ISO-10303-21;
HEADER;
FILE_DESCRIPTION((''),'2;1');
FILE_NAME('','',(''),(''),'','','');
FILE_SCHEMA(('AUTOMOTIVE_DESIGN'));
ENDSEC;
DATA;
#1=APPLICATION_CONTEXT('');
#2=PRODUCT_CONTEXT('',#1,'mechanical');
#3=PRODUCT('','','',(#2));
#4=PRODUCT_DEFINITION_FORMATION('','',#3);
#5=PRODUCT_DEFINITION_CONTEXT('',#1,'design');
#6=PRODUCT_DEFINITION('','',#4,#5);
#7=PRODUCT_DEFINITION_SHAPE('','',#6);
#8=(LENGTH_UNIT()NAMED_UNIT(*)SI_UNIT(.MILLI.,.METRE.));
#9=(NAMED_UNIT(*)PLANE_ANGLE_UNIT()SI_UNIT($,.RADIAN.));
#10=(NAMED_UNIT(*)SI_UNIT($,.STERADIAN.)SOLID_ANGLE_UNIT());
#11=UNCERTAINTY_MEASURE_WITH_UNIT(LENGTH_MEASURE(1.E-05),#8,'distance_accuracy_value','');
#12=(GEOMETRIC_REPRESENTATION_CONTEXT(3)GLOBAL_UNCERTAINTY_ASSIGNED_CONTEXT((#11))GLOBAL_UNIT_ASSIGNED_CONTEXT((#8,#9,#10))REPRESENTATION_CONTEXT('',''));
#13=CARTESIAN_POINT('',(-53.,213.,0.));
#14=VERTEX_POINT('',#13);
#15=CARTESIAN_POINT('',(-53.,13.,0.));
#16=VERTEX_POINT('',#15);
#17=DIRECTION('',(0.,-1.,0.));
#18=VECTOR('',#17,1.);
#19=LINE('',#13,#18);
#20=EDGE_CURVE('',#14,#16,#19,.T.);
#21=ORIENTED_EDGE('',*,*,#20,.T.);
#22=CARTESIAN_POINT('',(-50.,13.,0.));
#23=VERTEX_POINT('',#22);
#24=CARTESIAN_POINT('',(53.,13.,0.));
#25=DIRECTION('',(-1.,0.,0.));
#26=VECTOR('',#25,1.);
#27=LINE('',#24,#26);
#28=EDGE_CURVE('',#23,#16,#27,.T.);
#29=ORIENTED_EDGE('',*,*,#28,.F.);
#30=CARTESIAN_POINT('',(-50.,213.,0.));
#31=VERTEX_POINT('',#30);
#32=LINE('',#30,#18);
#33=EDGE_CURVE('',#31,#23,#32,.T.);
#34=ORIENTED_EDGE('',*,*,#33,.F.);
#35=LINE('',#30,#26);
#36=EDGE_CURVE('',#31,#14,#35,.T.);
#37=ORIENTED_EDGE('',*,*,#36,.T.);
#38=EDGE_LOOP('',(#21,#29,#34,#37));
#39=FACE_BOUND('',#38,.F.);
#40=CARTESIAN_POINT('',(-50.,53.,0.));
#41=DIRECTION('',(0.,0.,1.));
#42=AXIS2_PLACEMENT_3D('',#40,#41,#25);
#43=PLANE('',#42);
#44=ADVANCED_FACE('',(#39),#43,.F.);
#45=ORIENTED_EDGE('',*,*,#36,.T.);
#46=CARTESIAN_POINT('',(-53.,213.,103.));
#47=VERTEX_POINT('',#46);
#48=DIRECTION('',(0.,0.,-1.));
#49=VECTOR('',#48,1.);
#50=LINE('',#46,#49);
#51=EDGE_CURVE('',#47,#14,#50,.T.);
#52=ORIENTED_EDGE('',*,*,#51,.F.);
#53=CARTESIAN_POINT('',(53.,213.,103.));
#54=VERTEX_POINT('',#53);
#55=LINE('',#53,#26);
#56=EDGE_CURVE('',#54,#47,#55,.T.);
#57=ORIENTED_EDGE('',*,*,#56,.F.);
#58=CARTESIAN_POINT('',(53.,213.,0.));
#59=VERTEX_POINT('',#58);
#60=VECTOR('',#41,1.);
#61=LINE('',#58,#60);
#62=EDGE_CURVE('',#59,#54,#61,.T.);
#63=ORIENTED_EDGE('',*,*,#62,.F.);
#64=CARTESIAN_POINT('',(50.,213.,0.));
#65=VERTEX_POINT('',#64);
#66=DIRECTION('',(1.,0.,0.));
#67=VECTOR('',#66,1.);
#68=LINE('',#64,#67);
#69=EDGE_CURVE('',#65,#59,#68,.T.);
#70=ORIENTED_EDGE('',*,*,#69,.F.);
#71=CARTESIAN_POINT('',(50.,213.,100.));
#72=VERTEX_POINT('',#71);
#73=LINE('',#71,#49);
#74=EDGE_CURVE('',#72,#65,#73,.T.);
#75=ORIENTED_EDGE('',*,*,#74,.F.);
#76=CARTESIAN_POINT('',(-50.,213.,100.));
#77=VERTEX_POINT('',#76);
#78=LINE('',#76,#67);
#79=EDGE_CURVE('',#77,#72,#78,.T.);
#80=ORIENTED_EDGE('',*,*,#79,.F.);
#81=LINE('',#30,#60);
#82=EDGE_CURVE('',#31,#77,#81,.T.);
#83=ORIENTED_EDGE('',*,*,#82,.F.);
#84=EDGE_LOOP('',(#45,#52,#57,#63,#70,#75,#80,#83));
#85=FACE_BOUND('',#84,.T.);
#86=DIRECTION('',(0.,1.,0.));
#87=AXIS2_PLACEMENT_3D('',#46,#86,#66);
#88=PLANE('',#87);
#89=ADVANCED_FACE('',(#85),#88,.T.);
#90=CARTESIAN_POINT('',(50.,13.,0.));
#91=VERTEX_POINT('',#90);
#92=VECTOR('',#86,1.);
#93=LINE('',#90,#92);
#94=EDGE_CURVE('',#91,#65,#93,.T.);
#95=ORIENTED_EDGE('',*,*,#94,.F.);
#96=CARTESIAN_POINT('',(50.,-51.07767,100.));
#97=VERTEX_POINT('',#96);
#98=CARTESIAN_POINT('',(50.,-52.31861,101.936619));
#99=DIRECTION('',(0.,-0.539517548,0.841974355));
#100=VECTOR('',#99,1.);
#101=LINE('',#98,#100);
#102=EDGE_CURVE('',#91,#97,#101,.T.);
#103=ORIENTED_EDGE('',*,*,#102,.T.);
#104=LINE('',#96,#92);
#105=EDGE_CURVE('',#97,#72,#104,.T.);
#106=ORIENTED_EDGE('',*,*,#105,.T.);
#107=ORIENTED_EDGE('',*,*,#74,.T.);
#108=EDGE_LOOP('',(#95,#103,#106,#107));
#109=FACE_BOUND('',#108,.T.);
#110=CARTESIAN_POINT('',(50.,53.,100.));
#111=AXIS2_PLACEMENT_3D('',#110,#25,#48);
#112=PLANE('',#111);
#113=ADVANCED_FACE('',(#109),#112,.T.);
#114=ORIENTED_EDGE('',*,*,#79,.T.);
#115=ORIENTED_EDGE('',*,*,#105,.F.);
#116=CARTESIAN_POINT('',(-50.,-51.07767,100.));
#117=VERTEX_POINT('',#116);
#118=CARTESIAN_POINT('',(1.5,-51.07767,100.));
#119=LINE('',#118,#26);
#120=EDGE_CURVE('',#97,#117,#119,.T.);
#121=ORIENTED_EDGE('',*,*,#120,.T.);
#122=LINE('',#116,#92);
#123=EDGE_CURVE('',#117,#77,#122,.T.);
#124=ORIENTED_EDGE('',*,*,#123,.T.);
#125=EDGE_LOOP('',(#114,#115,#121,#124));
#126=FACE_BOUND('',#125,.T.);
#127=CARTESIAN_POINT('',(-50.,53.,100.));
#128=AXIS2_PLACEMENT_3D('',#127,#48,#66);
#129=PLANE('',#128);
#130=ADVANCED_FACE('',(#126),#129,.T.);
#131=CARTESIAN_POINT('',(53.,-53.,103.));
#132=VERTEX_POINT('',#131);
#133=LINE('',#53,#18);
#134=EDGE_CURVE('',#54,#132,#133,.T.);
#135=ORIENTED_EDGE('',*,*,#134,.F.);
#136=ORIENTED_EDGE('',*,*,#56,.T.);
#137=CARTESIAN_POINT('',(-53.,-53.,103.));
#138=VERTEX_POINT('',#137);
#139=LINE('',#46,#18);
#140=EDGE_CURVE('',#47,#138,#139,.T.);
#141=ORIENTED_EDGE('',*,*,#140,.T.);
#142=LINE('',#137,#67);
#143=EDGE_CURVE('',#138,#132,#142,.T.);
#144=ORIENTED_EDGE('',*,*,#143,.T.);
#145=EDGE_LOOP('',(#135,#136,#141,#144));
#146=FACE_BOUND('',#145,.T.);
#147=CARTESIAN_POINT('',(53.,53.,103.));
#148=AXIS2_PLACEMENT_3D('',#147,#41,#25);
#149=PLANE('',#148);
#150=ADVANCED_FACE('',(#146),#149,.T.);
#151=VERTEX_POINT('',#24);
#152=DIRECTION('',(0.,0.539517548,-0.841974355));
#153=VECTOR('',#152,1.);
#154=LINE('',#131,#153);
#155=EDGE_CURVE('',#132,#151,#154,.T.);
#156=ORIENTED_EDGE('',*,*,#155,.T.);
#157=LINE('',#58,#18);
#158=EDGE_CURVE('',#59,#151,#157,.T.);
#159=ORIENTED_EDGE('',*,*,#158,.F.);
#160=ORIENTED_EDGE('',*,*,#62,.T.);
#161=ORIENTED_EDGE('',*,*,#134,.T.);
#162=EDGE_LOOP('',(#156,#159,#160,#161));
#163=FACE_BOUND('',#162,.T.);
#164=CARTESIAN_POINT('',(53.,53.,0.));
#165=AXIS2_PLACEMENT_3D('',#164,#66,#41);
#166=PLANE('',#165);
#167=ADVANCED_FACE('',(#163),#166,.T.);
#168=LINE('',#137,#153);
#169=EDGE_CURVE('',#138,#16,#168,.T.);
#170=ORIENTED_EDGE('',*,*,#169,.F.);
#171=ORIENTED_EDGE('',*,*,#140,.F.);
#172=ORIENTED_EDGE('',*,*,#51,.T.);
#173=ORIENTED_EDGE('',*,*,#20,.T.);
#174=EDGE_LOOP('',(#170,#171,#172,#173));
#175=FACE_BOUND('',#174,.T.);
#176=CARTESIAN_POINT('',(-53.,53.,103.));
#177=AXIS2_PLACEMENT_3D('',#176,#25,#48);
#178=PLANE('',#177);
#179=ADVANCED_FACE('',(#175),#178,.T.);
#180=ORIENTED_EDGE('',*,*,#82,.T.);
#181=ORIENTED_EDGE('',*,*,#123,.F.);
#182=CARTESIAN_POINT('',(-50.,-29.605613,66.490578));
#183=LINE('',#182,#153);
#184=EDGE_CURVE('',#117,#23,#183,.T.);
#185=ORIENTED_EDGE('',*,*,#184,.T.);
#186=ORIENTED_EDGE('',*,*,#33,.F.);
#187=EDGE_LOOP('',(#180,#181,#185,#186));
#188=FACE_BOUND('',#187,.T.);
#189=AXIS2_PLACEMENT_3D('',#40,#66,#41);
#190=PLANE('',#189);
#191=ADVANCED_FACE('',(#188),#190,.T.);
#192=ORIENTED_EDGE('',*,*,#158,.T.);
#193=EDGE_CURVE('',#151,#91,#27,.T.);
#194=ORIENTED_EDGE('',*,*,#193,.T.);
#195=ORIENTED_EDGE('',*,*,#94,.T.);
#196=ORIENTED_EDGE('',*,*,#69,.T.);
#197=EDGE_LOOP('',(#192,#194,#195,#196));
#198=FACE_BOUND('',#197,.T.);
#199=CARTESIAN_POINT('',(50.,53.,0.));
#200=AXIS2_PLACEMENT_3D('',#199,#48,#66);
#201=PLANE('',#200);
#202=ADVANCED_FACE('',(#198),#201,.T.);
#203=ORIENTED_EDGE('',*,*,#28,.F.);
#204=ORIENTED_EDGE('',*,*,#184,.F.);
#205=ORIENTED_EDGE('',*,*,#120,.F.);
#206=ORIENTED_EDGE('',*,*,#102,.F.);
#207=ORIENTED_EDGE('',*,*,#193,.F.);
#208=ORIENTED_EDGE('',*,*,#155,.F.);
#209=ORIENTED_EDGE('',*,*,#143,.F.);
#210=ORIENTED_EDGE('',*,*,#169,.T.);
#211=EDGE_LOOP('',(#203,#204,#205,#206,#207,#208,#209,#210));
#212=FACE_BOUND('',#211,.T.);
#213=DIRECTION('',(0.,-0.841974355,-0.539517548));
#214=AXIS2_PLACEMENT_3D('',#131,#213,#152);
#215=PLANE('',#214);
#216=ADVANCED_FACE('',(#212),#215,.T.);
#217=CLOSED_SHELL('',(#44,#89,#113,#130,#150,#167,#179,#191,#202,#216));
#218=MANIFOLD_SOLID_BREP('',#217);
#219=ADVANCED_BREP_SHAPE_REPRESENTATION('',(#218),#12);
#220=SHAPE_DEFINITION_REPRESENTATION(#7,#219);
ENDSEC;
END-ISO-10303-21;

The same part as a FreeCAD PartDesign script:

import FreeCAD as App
import Part
import Sketcher
from FreeCAD import Vector

doc = App.newDocument("Part")
params = doc.addObject("Spreadsheet::Sheet", "Params")
for row, (alias, value) in enumerate([
    ("sketch1_width", "106 mm"),
    ("pad1_length", "103 mm"),
    ("sketch2_width", "100 mm"),
    ("pocket1_length", "106 mm"),
    ("sketch3_width", "66 mm"),
    ("sketch3_height", "103 mm"),
    ("pocket2_length", "106 mm"),
    ("sketch4_width", "3 mm"),
    ("sketch4_width2", "100 mm"),
    ("sketch4_height", "103 mm"),
    ("pad2_length", "160 mm"),
], start=1):
    params.set(f"A{row}", alias)
    params.set(f"B{row}", "=" + value)
    params.setAlias(f"B{row}", alias)

body = doc.addObject("PartDesign::Body", "Body")

# Sketch on XY plane
sketch1 = body.newObject("Sketcher::SketchObject", "Sketch")
sketch1.AttachmentSupport = (doc.getObject("XY_Plane"), [""])
sketch1.MapMode = "FlatFace"
sketch1.addGeometry([
    Part.LineSegment(Vector(53, -53, 0), Vector(53, 53, 0)),
    Part.LineSegment(Vector(53, 53, 0), Vector(-53, 53, 0)),
    Part.LineSegment(Vector(-53, 53, 0), Vector(-53, -53, 0)),
    Part.LineSegment(Vector(-53, -53, 0), Vector(53, -53, 0)),
], False)
sketch1.addConstraint([
    Sketcher.Constraint("Coincident", 0, 2, 1, 1),
    Sketcher.Constraint("Coincident", 1, 2, 2, 1),
    Sketcher.Constraint("Coincident", 2, 2, 3, 1),
    Sketcher.Constraint("Coincident", 3, 2, 0, 1),
    Sketcher.Constraint("Vertical", 0),
    Sketcher.Constraint("Horizontal", 1),
    Sketcher.Constraint("Vertical", 2),
    Sketcher.Constraint("Horizontal", 3),
    Sketcher.Constraint("Symmetric", 0, 2, 2, 2, -1, 1),
    Sketcher.Constraint("Equal", 3, 0),
    Sketcher.Constraint("DistanceX", 1, 2, 1, 1, 106.0),
])
sketch1.setExpression("Constraints[10]", "Params.sketch1_width")
pad1 = body.newObject("PartDesign::Pad", "Pad")
pad1.Profile = sketch1
pad1.setExpression("Length", "Params.pad1_length")

# Sketch on XZ plane
sketch2 = body.newObject("Sketcher::SketchObject", "Sketch001")
sketch2.AttachmentSupport = (doc.getObject("XZ_Plane"), [""])
sketch2.MapMode = "FlatFace"
sketch2.AttachmentOffset = App.Placement(Vector(0, 0, 53), App.Rotation())
sketch2.addGeometry([
    Part.LineSegment(Vector(-50, 0, 0), Vector(50, 0, 0)),
    Part.LineSegment(Vector(50, 0, 0), Vector(50, 100, 0)),
    Part.LineSegment(Vector(50, 100, 0), Vector(-50, 100, 0)),
    Part.LineSegment(Vector(-50, 100, 0), Vector(-50, 0, 0)),
], False)
sketch2.addConstraint([
    Sketcher.Constraint("Coincident", 0, 2, 1, 1),
    Sketcher.Constraint("Coincident", 1, 2, 2, 1),
    Sketcher.Constraint("Coincident", 2, 2, 3, 1),
    Sketcher.Constraint("Coincident", 3, 2, 0, 1),
    Sketcher.Constraint("Horizontal", 0),
    Sketcher.Constraint("Vertical", 1),
    Sketcher.Constraint("Horizontal", 2),
    Sketcher.Constraint("Vertical", 3),
    Sketcher.Constraint("Symmetric", 0, 2, 3, 2, -1, 1),
    Sketcher.Constraint("Equal", 2, 1),
    Sketcher.Constraint("DistanceX", 0, 1, 0, 2, 100.0),
])
sketch2.setExpression("Constraints[10]", "Params.sketch2_width")
pocket1 = body.newObject("PartDesign::Pocket", "Pocket")
pocket1.Profile = sketch2
pocket1.setExpression("Length", "Params.pocket1_length")

# Sketch on YZ plane
sketch3 = body.newObject("Sketcher::SketchObject", "Sketch002")
sketch3.AttachmentSupport = (doc.getObject("YZ_Plane"), [""])
sketch3.MapMode = "FlatFace"
sketch3.AttachmentOffset = App.Placement(Vector(0, 0, 53), App.Rotation())
sketch3.addGeometry([
    Part.LineSegment(Vector(-53, 103, 0), Vector(-53, 0, 0)),
    Part.LineSegment(Vector(-53, 0, 0), Vector(13, 0, 0)),
    Part.LineSegment(Vector(13, 0, 0), Vector(-53, 103, 0)),
], False)
sketch3.addConstraint([
    Sketcher.Constraint("Coincident", 0, 2, 1, 1),
    Sketcher.Constraint("Coincident", 1, 2, 2, 1),
    Sketcher.Constraint("Coincident", 2, 2, 0, 1),
    Sketcher.Constraint("Vertical", 0),
    Sketcher.Constraint("Horizontal", 1),
    Sketcher.Constraint("PointOnObject", 0, 2, -1),
    Sketcher.Constraint("DistanceX", 1, 1, 1, 2, 66.0),
    Sketcher.Constraint("DistanceY", 0, 2, 0, 1, 103.0),
    Sketcher.Constraint("DistanceX", 0, 2, -1, 1, 53.0),
])
sketch3.setExpression("Constraints[6]", "Params.sketch3_width")
sketch3.setExpression("Constraints[7]", "Params.sketch3_height")
pocket2 = body.newObject("PartDesign::Pocket", "Pocket001")
pocket2.Profile = sketch3
pocket2.setExpression("Length", "Params.pocket2_length")

# Sketch on XZ plane
sketch4 = body.newObject("Sketcher::SketchObject", "Sketch003")
sketch4.AttachmentSupport = (doc.getObject("XZ_Plane"), [""])
sketch4.MapMode = "FlatFace"
sketch4.AttachmentOffset = App.Placement(Vector(0, 0, -53), App.Rotation())
sketch4.addGeometry([
    Part.LineSegment(Vector(53, 0, 0), Vector(50, 0, 0)),  # 0
    Part.LineSegment(Vector(50, 0, 0), Vector(50, 100, 0)),  # 1
    Part.LineSegment(Vector(50, 100, 0), Vector(-50, 100, 0)),  # 2
    Part.LineSegment(Vector(-50, 100, 0), Vector(-50, 0, 0)),  # 3
    Part.LineSegment(Vector(-50, 0, 0), Vector(-53, 0, 0)),  # 4
    Part.LineSegment(Vector(-53, 0, 0), Vector(-53, 103, 0)),  # 5
    Part.LineSegment(Vector(-53, 103, 0), Vector(53, 103, 0)),  # 6
    Part.LineSegment(Vector(53, 103, 0), Vector(53, 0, 0)),  # 7
], False)
sketch4.addConstraint([
    Sketcher.Constraint("Coincident", 0, 2, 1, 1),
    Sketcher.Constraint("Coincident", 1, 2, 2, 1),
    Sketcher.Constraint("Coincident", 2, 2, 3, 1),
    Sketcher.Constraint("Coincident", 3, 2, 4, 1),
    Sketcher.Constraint("Coincident", 4, 2, 5, 1),
    Sketcher.Constraint("Coincident", 5, 2, 6, 1),
    Sketcher.Constraint("Coincident", 6, 2, 7, 1),
    Sketcher.Constraint("Coincident", 7, 2, 0, 1),
    Sketcher.Constraint("Horizontal", 0),
    Sketcher.Constraint("Vertical", 1),
    Sketcher.Constraint("Horizontal", 2),
    Sketcher.Constraint("Vertical", 3),
    Sketcher.Constraint("Horizontal", 4),
    Sketcher.Constraint("Vertical", 5),
    Sketcher.Constraint("Horizontal", 6),
    Sketcher.Constraint("Vertical", 7),
    Sketcher.Constraint("Symmetric", 0, 2, 3, 2, -1, 1),
    Sketcher.Constraint("Symmetric", 4, 2, 7, 2, -2),
    Sketcher.Constraint("Equal", 2, 1),
    Sketcher.Constraint("DistanceX", 0, 2, 0, 1, 3.0),
    Sketcher.Constraint("DistanceX", 2, 2, 2, 1, 100.0),
    Sketcher.Constraint("DistanceY", 5, 1, 5, 2, 103.0),
])
sketch4.setExpression("Constraints[19]", "Params.sketch4_width")
sketch4.setExpression("Constraints[20]", "Params.sketch4_width2")
sketch4.setExpression("Constraints[21]", "Params.sketch4_height")
pad2 = body.newObject("PartDesign::Pad", "Pad001")
pad2.Profile = sketch4
pad2.setExpression("Length", "Params.pad2_length")
pad2.Reversed = True

doc.recompute()
